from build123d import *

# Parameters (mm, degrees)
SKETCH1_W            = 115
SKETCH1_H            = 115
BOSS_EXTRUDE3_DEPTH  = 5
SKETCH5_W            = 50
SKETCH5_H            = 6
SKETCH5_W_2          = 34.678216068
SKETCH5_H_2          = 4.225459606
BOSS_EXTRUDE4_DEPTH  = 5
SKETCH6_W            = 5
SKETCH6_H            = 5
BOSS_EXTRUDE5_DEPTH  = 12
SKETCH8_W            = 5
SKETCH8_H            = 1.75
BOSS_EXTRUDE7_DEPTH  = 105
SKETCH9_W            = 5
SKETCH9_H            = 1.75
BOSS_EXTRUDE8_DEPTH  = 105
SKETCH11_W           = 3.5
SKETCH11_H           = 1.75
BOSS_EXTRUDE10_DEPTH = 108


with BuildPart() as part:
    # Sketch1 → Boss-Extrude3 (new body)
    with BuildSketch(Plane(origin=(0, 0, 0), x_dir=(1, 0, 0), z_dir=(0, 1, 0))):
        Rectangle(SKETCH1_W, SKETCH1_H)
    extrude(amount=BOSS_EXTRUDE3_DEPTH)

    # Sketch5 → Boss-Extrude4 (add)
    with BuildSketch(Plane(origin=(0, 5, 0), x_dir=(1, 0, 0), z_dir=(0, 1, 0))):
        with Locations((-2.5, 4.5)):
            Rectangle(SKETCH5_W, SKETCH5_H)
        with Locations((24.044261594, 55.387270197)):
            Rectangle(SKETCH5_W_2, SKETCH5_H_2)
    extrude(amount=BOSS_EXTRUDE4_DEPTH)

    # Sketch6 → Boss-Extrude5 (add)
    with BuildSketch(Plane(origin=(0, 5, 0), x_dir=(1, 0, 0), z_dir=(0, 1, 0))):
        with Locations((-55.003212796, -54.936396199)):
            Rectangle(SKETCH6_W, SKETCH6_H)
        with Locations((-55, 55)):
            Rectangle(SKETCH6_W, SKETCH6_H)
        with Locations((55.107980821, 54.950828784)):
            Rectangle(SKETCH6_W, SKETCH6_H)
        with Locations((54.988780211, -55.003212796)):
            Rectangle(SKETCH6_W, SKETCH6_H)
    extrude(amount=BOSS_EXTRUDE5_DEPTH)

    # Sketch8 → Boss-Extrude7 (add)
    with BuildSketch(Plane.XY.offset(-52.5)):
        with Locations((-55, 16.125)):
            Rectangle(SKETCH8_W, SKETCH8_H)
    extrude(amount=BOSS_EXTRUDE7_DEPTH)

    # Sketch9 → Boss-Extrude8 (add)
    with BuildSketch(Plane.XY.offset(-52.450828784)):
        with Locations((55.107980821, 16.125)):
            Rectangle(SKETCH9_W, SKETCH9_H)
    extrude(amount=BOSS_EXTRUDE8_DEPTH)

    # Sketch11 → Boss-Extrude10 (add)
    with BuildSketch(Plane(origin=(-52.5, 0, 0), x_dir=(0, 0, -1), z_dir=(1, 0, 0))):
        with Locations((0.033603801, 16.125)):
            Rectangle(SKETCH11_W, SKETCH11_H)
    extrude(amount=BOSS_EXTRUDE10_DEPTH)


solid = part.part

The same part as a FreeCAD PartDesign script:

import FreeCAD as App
import Part
import Sketcher
from FreeCAD import Vector

doc = App.newDocument("Part")
body = doc.addObject("PartDesign::Body", "Body")

# Sketch on XZ plane
sketch1 = body.newObject("Sketcher::SketchObject", "Sketch")
sketch1.AttachmentSupport = (doc.getObject("XZ_Plane"), [""])
sketch1.MapMode = "FlatFace"
sketch1.addGeometry(Part.LineSegment(Vector(-57.5, -57.5, 0), Vector(-57.5, 57.5, 0)), False)
sketch1.addGeometry(Part.LineSegment(Vector(-57.5, 57.5, 0), Vector(57.5, 57.5, 0)), False)
sketch1.addGeometry(Part.LineSegment(Vector(57.5, 57.5, 0), Vector(57.5, -57.5, 0)), False)
sketch1.addGeometry(Part.LineSegment(Vector(57.5, -57.5, 0), Vector(-57.5, -57.5, 0)), False)
sketch1.addConstraint(Sketcher.Constraint("Coincident", 0, 2, 1, 1))
sketch1.addConstraint(Sketcher.Constraint("Coincident", 1, 2, 2, 1))
sketch1.addConstraint(Sketcher.Constraint("Coincident", 2, 2, 3, 1))
sketch1.addConstraint(Sketcher.Constraint("Coincident", 3, 2, 0, 1))
sketch1.addConstraint(Sketcher.Constraint("Vertical", 0))
sketch1.addConstraint(Sketcher.Constraint("Horizontal", 1))
sketch1.addConstraint(Sketcher.Constraint("Vertical", 2))
sketch1.addConstraint(Sketcher.Constraint("Horizontal", 3))
sketch1.addConstraint(Sketcher.Constraint("Symmetric", 0, 2, 2, 2, -1, 1))
sketch1.addConstraint(Sketcher.Constraint("Equal", 3, 0))
sketch1.addConstraint(Sketcher.Constraint("DistanceX", 1, 1, 1, 2, 115.0))
pad1 = body.newObject("PartDesign::Pad", "Pad")
pad1.Profile = sketch1
pad1.Length = 5
pad1.Reversed = True

# Sketch on XZ plane
sketch2 = body.newObject("Sketcher::SketchObject", "Sketch001")
sketch2.AttachmentSupport = (doc.getObject("XZ_Plane"), [""])
sketch2.MapMode = "FlatFace"
sketch2.AttachmentOffset = App.Placement(Vector(0, 0, -5), App.Rotation())
sketch2.addGeometry(Part.LineSegment(Vector(-27.5, -7.5, 0), Vector(-27.5, -1.5, 0)), False)
sketch2.addGeometry(Part.LineSegment(Vector(-27.5, -1.5, 0), Vector(22.5, -1.5, 0)), False)
sketch2.addGeometry(Part.LineSegment(Vector(22.5, -1.5, 0), Vector(22.5, -7.5, 0)), False)
sketch2.addGeometry(Part.LineSegment(Vector(22.5, -7.5, 0), Vector(-27.5, -7.5, 0)), False)
sketch2.addGeometry(Part.LineSegment(Vector(6.705154, -57.5, 0), Vector(6.705154, -53.27454, 0)), False)
sketch2.addGeometry(Part.LineSegment(Vector(6.705154, -53.27454, 0), Vector(41.38337, -53.27454, 0)), False)
sketch2.addGeometry(Part.LineSegment(Vector(41.38337, -53.27454, 0), Vector(41.38337, -57.5, 0)), False)
sketch2.addGeometry(Part.LineSegment(Vector(41.38337, -57.5, 0), Vector(6.705154, -57.5, 0)), False)
sketch2.addConstraint(Sketcher.Constraint("Coincident", 0, 2, 1, 1))
sketch2.addConstraint(Sketcher.Constraint("Coincident", 1, 2, 2, 1))
sketch2.addConstraint(Sketcher.Constraint("Coincident", 2, 2, 3, 1))
sketch2.addConstraint(Sketcher.Constraint("Coincident", 3, 2, 0, 1))
sketch2.addConstraint(Sketcher.Constraint("Coincident", 4, 2, 5, 1))
sketch2.addConstraint(Sketcher.Constraint("Coincident", 5, 2, 6, 1))
sketch2.addConstraint(Sketcher.Constraint("Coincident", 6, 2, 7, 1))
sketch2.addConstraint(Sketcher.Constraint("Coincident", 7, 2, 4, 1))
sketch2.addConstraint(Sketcher.Constraint("Vertical", 0))
sketch2.addConstraint(Sketcher.Constraint("Horizontal", 1))
sketch2.addConstraint(Sketcher.Constraint("Vertical", 2))
sketch2.addConstraint(Sketcher.Constraint("Horizontal", 3))
sketch2.addConstraint(Sketcher.Constraint("Vertical", 4))
sketch2.addConstraint(Sketcher.Constraint("Horizontal", 5))
sketch2.addConstraint(Sketcher.Constraint("Vertical", 6))
sketch2.addConstraint(Sketcher.Constraint("Horizontal", 7))
sketch2.addConstraint(Sketcher.Constraint("DistanceX", 1, 1, 1, 2, 50.0))
sketch2.addConstraint(Sketcher.Constraint("DistanceY", 0, 1, 0, 2, 6.0))
sketch2.addConstraint(Sketcher.Constraint("DistanceY", 6, 2, 2, 2, 50.0))
sketch2.addConstraint(Sketcher.Constraint("DistanceX", 0, 2, -1, 1, 27.5))
sketch2.addConstraint(Sketcher.Constraint("DistanceY", 0, 2, -1, 1, 1.5))
sketch2.addConstraint(Sketcher.Constraint("DistanceY", 4, 1, 4, 2, 4.22546))
sketch2.addConstraint(Sketcher.Constraint("DistanceX", 5, 1, 5, 2, 34.678216))
sketch2.addConstraint(Sketcher.Constraint("DistanceX", -1, 1, 5, 2, 41.38337))
pad2 = body.newObject("PartDesign::Pad", "Pad001")
pad2.Profile = sketch2
pad2.Length = 5
pad2.Reversed = True

# Sketch on XZ plane
sketch3 = body.newObject("Sketcher::SketchObject", "Sketch002")
sketch3.AttachmentSupport = (doc.getObject("XZ_Plane"), [""])
sketch3.MapMode = "FlatFace"
sketch3.AttachmentOffset = App.Placement(Vector(0, 0, -5), App.Rotation())
sketch3.addGeometry(Part.LineSegment(Vector(-57.503213, 52.436396, 0), Vector(-57.503213, 57.436396, 0)), False)
sketch3.addGeometry(Part.LineSegment(Vector(-57.503213, 57.436396, 0), Vector(-52.503213, 57.436396, 0)), False)
sketch3.addGeometry(Part.LineSegment(Vector(-52.503213, 57.436396, 0), Vector(-52.503213, 52.436396, 0)), False)
sketch3.addGeometry(Part.LineSegment(Vector(-52.503213, 52.436396, 0), Vector(-57.503213, 52.436396, 0)), False)
sketch3.addGeometry(Part.LineSegment(Vector(-57.5, -57.5, 0), Vector(-57.5, -52.5, 0)), False)
sketch3.addGeometry(Part.LineSegment(Vector(-57.5, -52.5, 0), Vector(-52.5, -52.5, 0)), False)
sketch3.addGeometry(Part.LineSegment(Vector(-52.5, -52.5, 0), Vector(-52.5, -57.5, 0)), False)
sketch3.addGeometry(Part.LineSegment(Vector(-52.5, -57.5, 0), Vector(-57.5, -57.5, 0)), False)
sketch3.addGeometry(Part.LineSegment(Vector(52.607981, -57.450829, 0), Vector(52.607981, -52.450829, 0)), False)
sketch3.addGeometry(Part.LineSegment(Vector(52.607981, -52.450829, 0), Vector(57.607981, -52.450829, 0)), False)
sketch3.addGeometry(Part.LineSegment(Vector(57.607981, -52.450829, 0), Vector(57.607981, -57.450829, 0)), False)
sketch3.addGeometry(Part.LineSegment(Vector(57.607981, -57.450829, 0), Vector(52.607981, -57.450829, 0)), False)
sketch3.addGeometry(Part.LineSegment(Vector(52.48878, 52.503213, 0), Vector(52.48878, 57.503213, 0)), False)
sketch3.addGeometry(Part.LineSegment(Vector(52.48878, 57.503213, 0), Vector(57.48878, 57.503213, 0)), False)
sketch3.addGeometry(Part.LineSegment(Vector(57.48878, 57.503213, 0), Vector(57.48878, 52.503213, 0)), False)
sketch3.addGeometry(Part.LineSegment(Vector(57.48878, 52.503213, 0), Vector(52.48878, 52.503213, 0)), False)
sketch3.addConstraint(Sketcher.Constraint("Coincident", 0, 2, 1, 1))
sketch3.addConstraint(Sketcher.Constraint("Coincident", 1, 2, 2, 1))
sketch3.addConstraint(Sketcher.Constraint("Coincident", 2, 2, 3, 1))
sketch3.addConstraint(Sketcher.Constraint("Coincident", 3, 2, 0, 1))
sketch3.addConstraint(Sketcher.Constraint("Coincident", 4, 2, 5, 1))
sketch3.addConstraint(Sketcher.Constraint("Coincident", 5, 2, 6, 1))
sketch3.addConstraint(Sketcher.Constraint("Coincident", 6, 2, 7, 1))
sketch3.addConstraint(Sketcher.Constraint("Coincident", 7, 2, 4, 1))
sketch3.addConstraint(Sketcher.Constraint("Coincident", 8, 2, 9, 1))
sketch3.addConstraint(Sketcher.Constraint("Coincident", 9, 2, 10, 1))
sketch3.addConstraint(Sketcher.Constraint("Coincident", 10, 2, 11, 1))
sketch3.addConstraint(Sketcher.Constraint("Coincident", 11, 2, 8, 1))
sketch3.addConstraint(Sketcher.Constraint("Coincident", 12, 2, 13, 1))
sketch3.addConstraint(Sketcher.Constraint("Coincident", 13, 2, 14, 1))
sketch3.addConstraint(Sketcher.Constraint("Coincident", 14, 2, 15, 1))
sketch3.addConstraint(Sketcher.Constraint("Coincident", 15, 2, 12, 1))
sketch3.addConstraint(Sketcher.Constraint("Vertical", 0))
sketch3.addConstraint(Sketcher.Constraint("Horizontal", 1))
sketch3.addConstraint(Sketcher.Constraint("Vertical", 2))
sketch3.addConstraint(Sketcher.Constraint("Horizontal", 3))
sketch3.addConstraint(Sketcher.Constraint("Vertical", 4))
sketch3.addConstraint(Sketcher.Constraint("Horizontal", 5))
sketch3.addConstraint(Sketcher.Constraint("Vertical", 6))
sketch3.addConstraint(Sketcher.Constraint("Horizontal", 7))
sketch3.addConstraint(Sketcher.Constraint("Vertical", 8))
sketch3.addConstraint(Sketcher.Constraint("Horizontal", 9))
sketch3.addConstraint(Sketcher.Constraint("Vertical", 10))
sketch3.addConstraint(Sketcher.Constraint("Horizontal", 11))
sketch3.addConstraint(Sketcher.Constraint("Vertical", 12))
sketch3.addConstraint(Sketcher.Constraint("Horizontal", 13))
sketch3.addConstraint(Sketcher.Constraint("Vertical", 14))
sketch3.addConstraint(Sketcher.Constraint("Horizontal", 15))
sketch3.addConstraint(Sketcher.Constraint("Equal", 3, 5))
sketch3.addConstraint(Sketcher.Constraint("Equal", 7, 9))
sketch3.addConstraint(Sketcher.Constraint("Equal", 11, 13))
sketch3.addConstraint(Sketcher.Constraint("Equal", 15, 0))
sketch3.addConstraint(Sketcher.Constraint("Equal", 2, 4))
sketch3.addConstraint(Sketcher.Constraint("Equal", 6, 8))
sketch3.addConstraint(Sketcher.Constraint("Equal", 10, 12))
sketch3.addConstraint(Sketcher.Constraint("DistanceX", 1, 1, 1, 2, 5.0))
sketch3.addConstraint(Sketcher.Constraint("DistanceX", 4, 2, -1, 1, 57.5))
sketch3.addConstraint(Sketcher.Constraint("DistanceY", 4, 2, -1, 1, 52.5))
sketch3.addConstraint(Sketcher.Constraint("DistanceX", 12, 2, 8, 2, 0.119201))
sketch3.addConstraint(Sketcher.Constraint("DistanceX", -1, 1, 8, 2, 52.607981))
sketch3.addConstraint(Sketcher.Constraint("DistanceY", 8, 2, -1, 1, 52.450829))
sketch3.addConstraint(Sketcher.Constraint("DistanceY", 8, 2, 12, 2, 109.954042))
sketch3.addConstraint(Sketcher.Constraint("DistanceX", 0, 2, -1, 1, 57.503213))
sketch3.addConstraint(Sketcher.Constraint("DistanceY", -1, 1, 0, 2, 57.436396))
pad3 = body.newObject("PartDesign::Pad", "Pad002")
pad3.Profile = sketch3
pad3.Length = 12
pad3.Reversed = True

# Sketch on XY plane
sketch4 = body.newObject("Sketcher::SketchObject", "Sketch003")
sketch4.AttachmentSupport = (doc.getObject("XY_Plane"), [""])
sketch4.MapMode = "FlatFace"
sketch4.AttachmentOffset = App.Placement(Vector(0, 0, -52.5), App.Rotation())
sketch4.addGeometry(Part.LineSegment(Vector(-57.5, 17, 0), Vector(-57.5, 15.25, 0)), False)
sketch4.addGeometry(Part.LineSegment(Vector(-57.5, 15.25, 0), Vector(-52.5, 15.25, 0)), False)
sketch4.addGeometry(Part.LineSegment(Vector(-52.5, 15.25, 0), Vector(-52.5, 17, 0)), False)
sketch4.addGeometry(Part.LineSegment(Vector(-52.5, 17, 0), Vector(-57.5, 17, 0)), False)
sketch4.addConstraint(Sketcher.Constraint("Coincident", 0, 2, 1, 1))
sketch4.addConstraint(Sketcher.Constraint("Coincident", 1, 2, 2, 1))
sketch4.addConstraint(Sketcher.Constraint("Coincident", 2, 2, 3, 1))
sketch4.addConstraint(Sketcher.Constraint("Coincident", 3, 2, 0, 1))
sketch4.addConstraint(Sketcher.Constraint("Vertical", 0))
sketch4.addConstraint(Sketcher.Constraint("Horizontal", 1))
sketch4.addConstraint(Sketcher.Constraint("Vertical", 2))
sketch4.addConstraint(Sketcher.Constraint("Horizontal", 3))
sketch4.addConstraint(Sketcher.Constraint("DistanceX", 1, 1, 1, 2, 5.0))
sketch4.addConstraint(Sketcher.Constraint("DistanceY", -1, 1, 2, 2, 17.0))
sketch4.addConstraint(Sketcher.Constraint("DistanceY", 0, 2, 0, 1, 1.75))
sketch4.addConstraint(Sketcher.Constraint("DistanceX", 0, 2, -1, 1, 57.5))
pad4 = body.newObject("PartDesign::Pad", "Pad003")
pad4.Profile = sketch4
pad4.Length = 105

# Sketch on XY plane
sketch5 = body.newObject("Sketcher::SketchObject", "Sketch004")
sketch5.AttachmentSupport = (doc.getObject("XY_Plane"), [""])
sketch5.MapMode = "FlatFace"
sketch5.AttachmentOffset = App.Placement(Vector(0, 0, -52.450829), App.Rotation())
sketch5.addGeometry(Part.LineSegment(Vector(52.607981, 17, 0), Vector(52.607981, 15.25, 0)), False)
sketch5.addGeometry(Part.LineSegment(Vector(52.607981, 15.25, 0), Vector(57.607981, 15.25, 0)), False)
sketch5.addGeometry(Part.LineSegment(Vector(57.607981, 15.25, 0), Vector(57.607981, 17, 0)), False)
sketch5.addGeometry(Part.LineSegment(Vector(57.607981, 17, 0), Vector(52.607981, 17, 0)), False)
sketch5.addConstraint(Sketcher.Constraint("Coincident", 0, 2, 1, 1))
sketch5.addConstraint(Sketcher.Constraint("Coincident", 1, 2, 2, 1))
sketch5.addConstraint(Sketcher.Constraint("Coincident", 2, 2, 3, 1))
sketch5.addConstraint(Sketcher.Constraint("Coincident", 3, 2, 0, 1))
sketch5.addConstraint(Sketcher.Constraint("Vertical", 0))
sketch5.addConstraint(Sketcher.Constraint("Horizontal", 1))
sketch5.addConstraint(Sketcher.Constraint("Vertical", 2))
sketch5.addConstraint(Sketcher.Constraint("Horizontal", 3))
sketch5.addConstraint(Sketcher.Constraint("DistanceX", 1, 1, 1, 2, 5.0))
sketch5.addConstraint(Sketcher.Constraint("DistanceY", -1, 1, 2, 2, 17.0))
sketch5.addConstraint(Sketcher.Constraint("DistanceY", 0, 2, 0, 1, 1.75))
sketch5.addConstraint(Sketcher.Constraint("DistanceX", -1, 1, 0, 2, 52.607981))
pad5 = body.newObject("PartDesign::Pad", "Pad004")
pad5.Profile = sketch5
pad5.Length = 105

# Sketch on YZ plane
sketch6 = body.newObject("Sketcher::SketchObject", "Sketch005")
sketch6.AttachmentSupport = (doc.getObject("YZ_Plane"), [""])
sketch6.MapMode = "FlatFace"
sketch6.AttachmentOffset = App.Placement(Vector(0, 0, -52.5), App.Rotation())
sketch6.addGeometry(Part.LineSegment(Vector(17, 1.716396, 0), Vector(15.25, 1.716396, 0)), False)
sketch6.addGeometry(Part.LineSegment(Vector(15.25, 1.716396, 0), Vector(15.25, -1.783604, 0)), False)
sketch6.addGeometry(Part.LineSegment(Vector(15.25, -1.783604, 0), Vector(17, -1.783604, 0)), False)
sketch6.addGeometry(Part.LineSegment(Vector(17, -1.783604, 0), Vector(17, 1.716396, 0)), False)
sketch6.addConstraint(Sketcher.Constraint("Coincident", 0, 2, 1, 1))
sketch6.addConstraint(Sketcher.Constraint("Coincident", 1, 2, 2, 1))
sketch6.addConstraint(Sketcher.Constraint("Coincident", 2, 2, 3, 1))
sketch6.addConstraint(Sketcher.Constraint("Coincident", 3, 2, 0, 1))
sketch6.addConstraint(Sketcher.Constraint("Horizontal", 0))
sketch6.addConstraint(Sketcher.Constraint("Vertical", 1))
sketch6.addConstraint(Sketcher.Constraint("Horizontal", 2))
sketch6.addConstraint(Sketcher.Constraint("Vertical", 3))
sketch6.addConstraint(Sketcher.Constraint("DistanceY", 1, 2, 1, 1, 3.5))
sketch6.addConstraint(Sketcher.Constraint("DistanceX", -1, 1, 2, 2, 17.0))
sketch6.addConstraint(Sketcher.Constraint("DistanceX", 0, 2, 0, 1, 1.75))
sketch6.addConstraint(Sketcher.Constraint("DistanceY", -1, 1, 0, 2, 1.716396))
pad6 = body.newObject("PartDesign::Pad", "Pad005")
pad6.Profile = sketch6
pad6.Length = 108

doc.recompute()
